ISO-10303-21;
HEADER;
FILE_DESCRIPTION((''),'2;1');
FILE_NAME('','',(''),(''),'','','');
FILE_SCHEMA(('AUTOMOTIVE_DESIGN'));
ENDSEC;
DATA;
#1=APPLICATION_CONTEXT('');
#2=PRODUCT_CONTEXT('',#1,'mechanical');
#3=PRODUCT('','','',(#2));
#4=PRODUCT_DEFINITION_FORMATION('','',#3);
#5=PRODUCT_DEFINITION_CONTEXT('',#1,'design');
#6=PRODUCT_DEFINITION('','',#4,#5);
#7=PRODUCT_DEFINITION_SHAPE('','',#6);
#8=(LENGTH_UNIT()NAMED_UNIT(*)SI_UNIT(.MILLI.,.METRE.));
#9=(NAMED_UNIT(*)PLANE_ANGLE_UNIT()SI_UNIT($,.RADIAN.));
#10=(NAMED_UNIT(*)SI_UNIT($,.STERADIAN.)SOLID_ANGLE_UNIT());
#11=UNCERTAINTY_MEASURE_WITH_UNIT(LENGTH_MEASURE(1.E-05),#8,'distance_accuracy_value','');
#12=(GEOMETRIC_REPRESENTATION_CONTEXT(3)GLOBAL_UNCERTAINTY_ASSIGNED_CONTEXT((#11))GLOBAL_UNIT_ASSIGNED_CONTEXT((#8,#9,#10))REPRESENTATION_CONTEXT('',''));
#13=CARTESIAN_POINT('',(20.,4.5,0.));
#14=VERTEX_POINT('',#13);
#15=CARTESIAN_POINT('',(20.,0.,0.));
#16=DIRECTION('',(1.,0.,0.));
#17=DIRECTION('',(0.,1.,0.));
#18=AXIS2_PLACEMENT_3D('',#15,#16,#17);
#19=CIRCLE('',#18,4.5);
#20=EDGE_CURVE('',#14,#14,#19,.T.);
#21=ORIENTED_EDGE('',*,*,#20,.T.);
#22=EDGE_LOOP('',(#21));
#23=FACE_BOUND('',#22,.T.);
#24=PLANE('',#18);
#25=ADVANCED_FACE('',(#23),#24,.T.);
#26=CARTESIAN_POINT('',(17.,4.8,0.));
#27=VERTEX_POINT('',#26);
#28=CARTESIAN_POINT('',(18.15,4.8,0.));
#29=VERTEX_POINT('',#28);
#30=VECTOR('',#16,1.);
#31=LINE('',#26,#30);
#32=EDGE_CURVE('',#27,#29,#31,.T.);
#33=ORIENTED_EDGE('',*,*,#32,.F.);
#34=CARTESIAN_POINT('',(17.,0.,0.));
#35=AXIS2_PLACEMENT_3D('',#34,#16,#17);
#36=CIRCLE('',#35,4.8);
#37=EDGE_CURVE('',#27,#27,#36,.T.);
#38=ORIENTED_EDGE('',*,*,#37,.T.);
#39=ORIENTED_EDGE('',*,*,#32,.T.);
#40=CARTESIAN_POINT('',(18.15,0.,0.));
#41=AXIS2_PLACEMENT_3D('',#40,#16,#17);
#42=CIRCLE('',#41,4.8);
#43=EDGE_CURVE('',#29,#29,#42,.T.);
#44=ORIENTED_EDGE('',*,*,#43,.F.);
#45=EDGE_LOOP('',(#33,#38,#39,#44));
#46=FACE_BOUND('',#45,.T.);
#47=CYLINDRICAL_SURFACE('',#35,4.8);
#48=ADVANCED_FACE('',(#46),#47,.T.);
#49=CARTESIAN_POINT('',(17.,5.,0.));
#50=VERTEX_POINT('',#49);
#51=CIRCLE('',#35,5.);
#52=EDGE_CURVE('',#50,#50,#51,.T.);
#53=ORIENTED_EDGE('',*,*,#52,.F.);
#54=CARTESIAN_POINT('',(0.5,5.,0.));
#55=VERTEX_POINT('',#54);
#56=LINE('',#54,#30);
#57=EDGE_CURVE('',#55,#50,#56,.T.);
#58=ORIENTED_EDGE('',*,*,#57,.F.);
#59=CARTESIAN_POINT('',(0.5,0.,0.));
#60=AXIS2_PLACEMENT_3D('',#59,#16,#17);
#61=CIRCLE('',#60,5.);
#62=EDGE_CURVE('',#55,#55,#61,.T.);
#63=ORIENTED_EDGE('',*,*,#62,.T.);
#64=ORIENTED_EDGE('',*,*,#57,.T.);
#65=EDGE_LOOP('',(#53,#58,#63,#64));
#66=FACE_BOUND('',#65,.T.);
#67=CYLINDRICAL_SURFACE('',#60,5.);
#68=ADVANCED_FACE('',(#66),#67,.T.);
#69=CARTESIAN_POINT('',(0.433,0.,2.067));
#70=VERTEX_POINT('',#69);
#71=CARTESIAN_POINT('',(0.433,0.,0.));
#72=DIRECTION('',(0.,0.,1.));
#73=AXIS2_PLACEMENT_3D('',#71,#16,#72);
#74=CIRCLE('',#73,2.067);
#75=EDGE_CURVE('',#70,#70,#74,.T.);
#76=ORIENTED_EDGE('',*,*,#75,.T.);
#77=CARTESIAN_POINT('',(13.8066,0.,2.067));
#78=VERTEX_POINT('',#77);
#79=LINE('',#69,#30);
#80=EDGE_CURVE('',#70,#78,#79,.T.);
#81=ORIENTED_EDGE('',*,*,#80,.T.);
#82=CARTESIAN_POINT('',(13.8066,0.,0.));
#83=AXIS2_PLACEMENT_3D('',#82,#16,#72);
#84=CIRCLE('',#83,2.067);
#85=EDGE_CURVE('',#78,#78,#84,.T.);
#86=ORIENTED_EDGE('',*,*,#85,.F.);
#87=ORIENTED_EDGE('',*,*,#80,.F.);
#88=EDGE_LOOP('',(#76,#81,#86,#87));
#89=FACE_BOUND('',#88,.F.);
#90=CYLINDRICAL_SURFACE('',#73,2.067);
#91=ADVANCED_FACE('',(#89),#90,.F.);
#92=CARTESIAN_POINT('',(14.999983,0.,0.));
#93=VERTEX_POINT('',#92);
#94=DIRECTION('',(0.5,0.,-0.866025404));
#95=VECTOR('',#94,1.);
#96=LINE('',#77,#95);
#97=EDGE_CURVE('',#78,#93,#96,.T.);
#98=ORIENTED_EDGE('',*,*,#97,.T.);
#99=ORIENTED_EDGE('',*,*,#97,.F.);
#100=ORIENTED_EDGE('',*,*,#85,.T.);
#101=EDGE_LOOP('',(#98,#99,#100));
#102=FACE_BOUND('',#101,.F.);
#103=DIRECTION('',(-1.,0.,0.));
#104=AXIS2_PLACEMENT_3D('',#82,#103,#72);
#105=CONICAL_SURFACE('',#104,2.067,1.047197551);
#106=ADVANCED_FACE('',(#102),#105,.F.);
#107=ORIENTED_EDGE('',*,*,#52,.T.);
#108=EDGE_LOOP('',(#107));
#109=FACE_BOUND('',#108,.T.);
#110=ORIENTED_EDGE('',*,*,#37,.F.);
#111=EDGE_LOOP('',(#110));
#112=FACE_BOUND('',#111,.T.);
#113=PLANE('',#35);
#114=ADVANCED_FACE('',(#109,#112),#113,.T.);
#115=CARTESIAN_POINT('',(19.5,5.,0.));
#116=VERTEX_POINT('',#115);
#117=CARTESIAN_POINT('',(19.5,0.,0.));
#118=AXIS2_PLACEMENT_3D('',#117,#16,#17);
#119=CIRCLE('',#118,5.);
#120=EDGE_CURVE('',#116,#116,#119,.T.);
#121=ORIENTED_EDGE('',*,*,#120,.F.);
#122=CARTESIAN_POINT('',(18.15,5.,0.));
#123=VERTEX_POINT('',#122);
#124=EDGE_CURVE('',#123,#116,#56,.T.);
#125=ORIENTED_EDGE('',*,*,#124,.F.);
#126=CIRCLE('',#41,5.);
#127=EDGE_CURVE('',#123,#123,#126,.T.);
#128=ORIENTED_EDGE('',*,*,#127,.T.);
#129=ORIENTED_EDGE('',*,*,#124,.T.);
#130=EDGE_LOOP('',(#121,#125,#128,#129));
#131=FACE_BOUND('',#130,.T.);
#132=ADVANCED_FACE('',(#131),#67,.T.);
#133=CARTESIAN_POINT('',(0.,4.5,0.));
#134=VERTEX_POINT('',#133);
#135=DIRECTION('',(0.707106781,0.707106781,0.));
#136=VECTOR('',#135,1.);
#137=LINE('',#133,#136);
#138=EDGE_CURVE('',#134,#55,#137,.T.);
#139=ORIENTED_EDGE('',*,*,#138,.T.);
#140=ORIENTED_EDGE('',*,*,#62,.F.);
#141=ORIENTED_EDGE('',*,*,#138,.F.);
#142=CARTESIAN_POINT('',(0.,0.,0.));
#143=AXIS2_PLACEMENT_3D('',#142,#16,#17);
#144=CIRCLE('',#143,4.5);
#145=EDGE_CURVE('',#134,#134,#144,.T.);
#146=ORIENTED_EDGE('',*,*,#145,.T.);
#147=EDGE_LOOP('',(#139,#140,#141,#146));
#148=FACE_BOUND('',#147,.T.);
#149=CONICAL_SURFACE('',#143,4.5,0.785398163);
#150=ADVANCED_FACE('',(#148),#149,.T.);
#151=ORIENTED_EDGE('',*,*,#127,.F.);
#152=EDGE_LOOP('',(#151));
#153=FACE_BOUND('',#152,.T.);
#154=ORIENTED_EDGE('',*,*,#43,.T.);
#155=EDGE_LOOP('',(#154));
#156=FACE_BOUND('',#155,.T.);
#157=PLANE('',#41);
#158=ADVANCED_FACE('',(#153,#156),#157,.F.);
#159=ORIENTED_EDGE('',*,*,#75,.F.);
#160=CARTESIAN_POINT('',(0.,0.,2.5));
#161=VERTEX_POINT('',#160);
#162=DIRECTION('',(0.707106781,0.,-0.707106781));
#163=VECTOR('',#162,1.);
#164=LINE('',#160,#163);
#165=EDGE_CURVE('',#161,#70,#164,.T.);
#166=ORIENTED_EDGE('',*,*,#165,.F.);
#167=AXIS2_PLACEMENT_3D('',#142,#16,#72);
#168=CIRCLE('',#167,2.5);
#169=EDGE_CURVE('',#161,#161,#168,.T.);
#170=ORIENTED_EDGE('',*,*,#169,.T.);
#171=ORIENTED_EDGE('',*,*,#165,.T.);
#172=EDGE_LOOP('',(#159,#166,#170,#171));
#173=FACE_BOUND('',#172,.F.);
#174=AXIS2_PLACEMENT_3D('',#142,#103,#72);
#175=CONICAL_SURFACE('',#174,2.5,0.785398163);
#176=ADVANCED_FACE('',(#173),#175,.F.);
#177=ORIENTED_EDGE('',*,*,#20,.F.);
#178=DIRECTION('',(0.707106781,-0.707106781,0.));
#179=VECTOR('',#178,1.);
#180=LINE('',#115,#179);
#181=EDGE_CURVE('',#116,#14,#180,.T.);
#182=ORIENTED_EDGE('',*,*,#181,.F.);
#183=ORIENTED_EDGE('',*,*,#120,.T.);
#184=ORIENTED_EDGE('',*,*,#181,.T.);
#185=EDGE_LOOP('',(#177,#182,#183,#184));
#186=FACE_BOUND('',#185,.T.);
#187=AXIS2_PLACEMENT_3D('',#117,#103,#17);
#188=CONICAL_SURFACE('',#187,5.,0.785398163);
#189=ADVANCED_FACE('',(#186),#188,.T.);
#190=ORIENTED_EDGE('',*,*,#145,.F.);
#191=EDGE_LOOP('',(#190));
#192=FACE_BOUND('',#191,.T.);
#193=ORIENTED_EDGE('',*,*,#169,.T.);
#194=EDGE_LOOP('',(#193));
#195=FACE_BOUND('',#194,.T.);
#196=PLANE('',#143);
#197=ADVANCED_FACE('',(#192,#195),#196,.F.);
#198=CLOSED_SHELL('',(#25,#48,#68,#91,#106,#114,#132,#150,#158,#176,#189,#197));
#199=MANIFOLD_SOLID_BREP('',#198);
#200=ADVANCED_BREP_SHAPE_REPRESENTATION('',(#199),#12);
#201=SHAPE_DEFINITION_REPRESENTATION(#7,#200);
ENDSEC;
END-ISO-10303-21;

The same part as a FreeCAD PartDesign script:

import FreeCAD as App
import Part
import Sketcher
Q = App.Units.Quantity


def add_polygon(sketch, points):
    """Adds a closed chain of lines whose ends are joined by coincident constraints."""
    first, n = sketch.GeometryCount, len(points)
    for a, b in zip(points, points[1:] + points[:1]):
        sketch.addGeometry(Part.LineSegment(App.Vector(*a, 0), App.Vector(*b, 0)), False)
    for i in range(n):
        sketch.addConstraint(Sketcher.Constraint("Coincident", first + i, 2, first + (i + 1) % n, 1))

doc = App.newDocument("Part")
body = doc.addObject("PartDesign::Body", "Body")

# Sketch on XY plane
sketch1 = doc.addObject("Sketcher::SketchObject", "Sketch")
body.addObject(sketch1)
sketch1.AttachmentSupport = (doc.XY_Plane, [""])
sketch1.MapMode = "FlatFace"
add_polygon(sketch1, [(0, 0), (20, 0), (20, 4.5), (19.5, 5), (0.5, 5), (0, 4.5)])  # lines 0-5
sketch1.addConstraint([
    Sketcher.Constraint("Horizontal", 0),
    Sketcher.Constraint("Vertical", 1),
    Sketcher.Constraint("Horizontal", 3),
    Sketcher.Constraint("Vertical", 5),
    Sketcher.Constraint("Coincident", 5, 2, -1, 1),
    Sketcher.Constraint("Perpendicular", 2, 4),
    Sketcher.Constraint("Horizontal", 1, 2, 4, 2),
    Sketcher.Constraint("Equal", 2, 4),
    Sketcher.Constraint("DistanceX", 0, 1, 0, 2, Q("20 mm")),
    Sketcher.Constraint("DistanceX", 3, 2, 3, 1, Q("19 mm")),
    Sketcher.Constraint("DistanceY", 1, 1, 1, 2, Q("4.5 mm")),
])
revolution = doc.addObject("PartDesign::Revolution", "Revolution")
body.addObject(revolution)
revolution.Profile = sketch1
revolution.ReferenceAxis = (sketch1, ["H_Axis"])
revolution.Angle = 360

# Sketch on YZ plane
sketch2 = doc.addObject("Sketcher::SketchObject", "Sketch001")
body.addObject(sketch2)
sketch2.AttachmentSupport = (doc.YZ_Plane, [""])
sketch2.MapMode = "FlatFace"
sketch2.addGeometry(Part.Circle(App.Vector(0, 0, 0), App.Vector(0, 0, 1), 2.067), False)
sketch2.addConstraint([
    Sketcher.Constraint("Coincident", 0, 3, -1, 1),
    Sketcher.Constraint("Diameter", 0, Q("4.134 mm")),
])
doc.recompute()
hole = doc.addObject("PartDesign::Hole", "Hole")
body.addObject(hole)
hole.Profile = sketch2
hole.ThreadType = "None"
hole.Diameter = 4.134
hole.DepthType = "Dimension"
hole.Depth = 13.8066
hole.DrillPoint = "Angled"
hole.DrillPointAngle = 120
hole.HoleCutType = "Countersink"
hole.HoleCutDiameter = 5
hole.HoleCutCountersinkAngle = 90
hole.Reversed = True

# Sketch on XY plane
sketch3 = doc.addObject("Sketcher::SketchObject", "Sketch002")
body.addObject(sketch3)
sketch3.AttachmentSupport = (doc.XY_Plane, [""])
sketch3.MapMode = "FlatFace"
add_polygon(sketch3, [(18.15, 9.6), (17, 9.6), (17, 4.8), (18.15, 4.8)])  # lines 0-3
sketch3.addConstraint([
    Sketcher.Constraint("Horizontal", 0),
    Sketcher.Constraint("Vertical", 1),
    Sketcher.Constraint("Horizontal", 2),
    Sketcher.Constraint("Vertical", 3),
    Sketcher.Constraint("DistanceY", 1, 2, 1, 1, Q("4.8 mm")),
    Sketcher.Constraint("DistanceX", -1, 1, 0, 2, Q("17 mm")),
    Sketcher.Constraint("DistanceX", 0, 2, 0, 1, Q("1.15 mm")),
    Sketcher.Constraint("DistanceY", -1, 1, 0, 2, Q("9.6 mm")),
])
groove = doc.addObject("PartDesign::Groove", "Groove")
body.addObject(groove)
groove.Profile = sketch3
groove.ReferenceAxis = (sketch3, ["H_Axis"])
groove.Angle = 360

doc.recompute()
